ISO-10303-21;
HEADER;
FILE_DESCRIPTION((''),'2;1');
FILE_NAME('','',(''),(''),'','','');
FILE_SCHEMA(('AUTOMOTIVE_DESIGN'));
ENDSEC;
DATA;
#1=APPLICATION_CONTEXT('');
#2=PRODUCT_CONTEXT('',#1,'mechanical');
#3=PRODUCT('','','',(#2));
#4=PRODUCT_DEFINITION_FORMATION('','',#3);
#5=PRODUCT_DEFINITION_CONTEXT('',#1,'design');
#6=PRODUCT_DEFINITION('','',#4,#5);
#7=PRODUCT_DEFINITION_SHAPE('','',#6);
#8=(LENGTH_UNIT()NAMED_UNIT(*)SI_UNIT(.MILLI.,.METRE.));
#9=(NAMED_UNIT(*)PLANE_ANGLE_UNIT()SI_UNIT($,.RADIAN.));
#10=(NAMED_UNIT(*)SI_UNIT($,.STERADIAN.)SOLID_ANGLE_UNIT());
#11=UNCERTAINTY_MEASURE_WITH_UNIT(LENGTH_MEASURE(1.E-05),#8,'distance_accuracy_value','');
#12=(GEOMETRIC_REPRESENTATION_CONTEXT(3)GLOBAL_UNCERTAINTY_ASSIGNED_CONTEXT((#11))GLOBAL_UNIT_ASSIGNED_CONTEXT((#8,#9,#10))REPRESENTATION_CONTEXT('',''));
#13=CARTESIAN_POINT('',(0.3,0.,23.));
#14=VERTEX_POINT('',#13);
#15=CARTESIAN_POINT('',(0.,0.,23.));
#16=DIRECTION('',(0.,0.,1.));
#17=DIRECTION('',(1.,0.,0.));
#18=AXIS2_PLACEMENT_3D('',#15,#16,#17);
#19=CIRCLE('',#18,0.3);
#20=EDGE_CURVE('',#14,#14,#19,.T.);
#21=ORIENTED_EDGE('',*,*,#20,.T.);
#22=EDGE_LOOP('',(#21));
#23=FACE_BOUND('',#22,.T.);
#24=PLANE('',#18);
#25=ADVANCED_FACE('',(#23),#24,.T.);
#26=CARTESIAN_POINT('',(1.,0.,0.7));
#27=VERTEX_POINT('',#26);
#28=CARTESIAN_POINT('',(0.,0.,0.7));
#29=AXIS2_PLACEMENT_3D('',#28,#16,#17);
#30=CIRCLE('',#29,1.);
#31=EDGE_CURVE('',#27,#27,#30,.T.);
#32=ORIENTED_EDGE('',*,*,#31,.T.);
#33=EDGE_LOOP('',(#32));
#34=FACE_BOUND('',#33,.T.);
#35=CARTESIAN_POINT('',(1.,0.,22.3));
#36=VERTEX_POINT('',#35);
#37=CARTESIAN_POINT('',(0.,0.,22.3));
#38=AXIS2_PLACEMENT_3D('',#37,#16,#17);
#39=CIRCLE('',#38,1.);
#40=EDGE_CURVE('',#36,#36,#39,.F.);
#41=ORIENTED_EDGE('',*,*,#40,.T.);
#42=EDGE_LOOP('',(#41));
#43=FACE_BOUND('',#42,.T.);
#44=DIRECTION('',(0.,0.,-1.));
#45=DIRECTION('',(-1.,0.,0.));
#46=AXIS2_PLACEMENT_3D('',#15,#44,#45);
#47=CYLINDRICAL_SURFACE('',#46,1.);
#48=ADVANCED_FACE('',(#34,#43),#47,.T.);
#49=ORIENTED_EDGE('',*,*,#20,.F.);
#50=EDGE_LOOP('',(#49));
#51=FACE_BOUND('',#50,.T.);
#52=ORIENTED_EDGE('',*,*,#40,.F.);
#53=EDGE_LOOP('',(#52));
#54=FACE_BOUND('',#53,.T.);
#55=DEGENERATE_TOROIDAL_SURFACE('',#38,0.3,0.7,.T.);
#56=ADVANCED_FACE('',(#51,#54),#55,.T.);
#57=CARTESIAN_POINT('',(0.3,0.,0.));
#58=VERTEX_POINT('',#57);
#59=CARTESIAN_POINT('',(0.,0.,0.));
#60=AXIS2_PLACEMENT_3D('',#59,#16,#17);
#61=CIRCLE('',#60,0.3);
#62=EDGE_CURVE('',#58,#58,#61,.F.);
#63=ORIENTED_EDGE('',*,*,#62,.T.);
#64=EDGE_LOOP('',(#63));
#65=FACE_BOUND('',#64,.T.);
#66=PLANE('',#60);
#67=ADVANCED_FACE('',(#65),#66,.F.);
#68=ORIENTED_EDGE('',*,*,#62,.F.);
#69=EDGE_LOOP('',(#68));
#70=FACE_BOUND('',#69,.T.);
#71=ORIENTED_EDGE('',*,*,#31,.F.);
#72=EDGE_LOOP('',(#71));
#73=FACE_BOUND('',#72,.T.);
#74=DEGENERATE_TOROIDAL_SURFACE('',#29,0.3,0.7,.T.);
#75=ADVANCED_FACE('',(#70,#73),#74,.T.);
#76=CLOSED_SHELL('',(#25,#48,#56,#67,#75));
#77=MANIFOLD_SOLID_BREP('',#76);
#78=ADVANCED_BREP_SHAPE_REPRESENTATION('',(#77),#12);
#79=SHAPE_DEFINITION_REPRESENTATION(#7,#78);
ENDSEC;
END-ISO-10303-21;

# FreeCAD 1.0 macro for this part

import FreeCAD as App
import Part
import Sketcher


def edges_at(feature, points):
    """Names of the edges that pass closest to the given points."""
    edges = feature.Shape.Edges
    near = lambda p: min(range(len(edges)), key=lambda i: edges[i].distToShape(Part.Vertex(*p))[0])
    return sorted({f"Edge{near(p) + 1}" for p in points})

doc = App.newDocument("Part")
body = doc.addObject("PartDesign::Body", "Body")

sketch1 = body.newObject("Sketcher::SketchObject", "Sketch")
sketch1.AttachmentSupport = (doc.getObject("XY_Plane"), [""])
sketch1.MapMode = "FlatFace"
sketch1.addGeometry(Part.Circle(App.Vector(0, 0, 0), App.Vector(0, 0, 1), 1), False)
sketch1.addConstraint(Sketcher.Constraint("Coincident", 0, 3, -1, 1))
sketch1.addConstraint(Sketcher.Constraint("Diameter", 0, 2.0))
pad1 = body.newObject("PartDesign::Pad", "Pad")
pad1.Profile = sketch1
pad1.Length = 23
doc.recompute()

fillet = body.newObject("PartDesign::Fillet", "Fillet")
fillet.Base = (pad1, edges_at(pad1, [(-1, 0, 0), (-1, 0, 23)]))
fillet.Radius = 0.7

doc.recompute()
